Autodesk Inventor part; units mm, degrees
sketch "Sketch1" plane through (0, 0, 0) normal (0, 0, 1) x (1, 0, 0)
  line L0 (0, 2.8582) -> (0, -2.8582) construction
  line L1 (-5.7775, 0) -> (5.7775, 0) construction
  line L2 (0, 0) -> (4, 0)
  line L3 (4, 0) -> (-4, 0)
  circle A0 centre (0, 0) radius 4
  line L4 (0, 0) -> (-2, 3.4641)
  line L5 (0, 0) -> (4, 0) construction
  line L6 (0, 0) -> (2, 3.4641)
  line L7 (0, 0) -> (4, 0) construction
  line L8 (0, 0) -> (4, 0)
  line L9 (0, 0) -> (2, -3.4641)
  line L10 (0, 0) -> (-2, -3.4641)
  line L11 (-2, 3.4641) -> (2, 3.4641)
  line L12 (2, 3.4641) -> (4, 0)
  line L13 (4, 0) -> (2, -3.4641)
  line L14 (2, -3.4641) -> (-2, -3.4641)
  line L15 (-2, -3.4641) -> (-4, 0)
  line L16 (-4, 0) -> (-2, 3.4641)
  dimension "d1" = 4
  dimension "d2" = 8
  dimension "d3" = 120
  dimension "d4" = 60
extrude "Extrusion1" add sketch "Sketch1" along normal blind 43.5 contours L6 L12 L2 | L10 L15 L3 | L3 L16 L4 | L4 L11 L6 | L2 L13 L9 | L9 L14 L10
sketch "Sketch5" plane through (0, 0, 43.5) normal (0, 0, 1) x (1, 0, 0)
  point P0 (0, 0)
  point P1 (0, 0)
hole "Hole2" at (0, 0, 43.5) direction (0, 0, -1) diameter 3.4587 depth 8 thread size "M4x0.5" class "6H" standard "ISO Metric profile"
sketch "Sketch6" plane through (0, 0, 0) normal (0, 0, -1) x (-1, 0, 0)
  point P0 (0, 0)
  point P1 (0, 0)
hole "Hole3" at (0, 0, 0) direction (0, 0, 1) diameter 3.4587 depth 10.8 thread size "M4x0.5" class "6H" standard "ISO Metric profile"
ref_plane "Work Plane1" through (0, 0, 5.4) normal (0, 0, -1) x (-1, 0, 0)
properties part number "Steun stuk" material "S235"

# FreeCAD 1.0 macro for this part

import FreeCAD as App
import Part
import Sketcher
Q = App.Units.Quantity

doc = App.newDocument("Part")
body = doc.addObject("PartDesign::Body", "Body")

# Sketch on XY plane
sketch1 = doc.addObject("Sketcher::SketchObject", "Sketch")
body.addObject(sketch1)
sketch1.AttachmentSupport = (doc.XY_Plane, [""])
sketch1.MapMode = "FlatFace"
sketch1.addGeometry([
    Part.LineSegment(App.Vector(4, 0, 0), App.Vector(2, 3.4641, 0)),  # 0
    Part.LineSegment(App.Vector(2, 3.4641, 0), App.Vector(-2, 3.4641, 0)),  # 1
    Part.LineSegment(App.Vector(-2, 3.4641, 0), App.Vector(-4, 0, 0)),  # 2
    Part.LineSegment(App.Vector(-4, 0, 0), App.Vector(-2, -3.4641, 0)),  # 3
    Part.LineSegment(App.Vector(-2, -3.4641, 0), App.Vector(2, -3.4641, 0)),  # 4
    Part.LineSegment(App.Vector(2, -3.4641, 0), App.Vector(4, 0, 0)),  # 5
], False)
sketch1.addConstraint([
    Sketcher.Constraint("Coincident", 0, 2, 1, 1),
    Sketcher.Constraint("Coincident", 1, 2, 2, 1),
    Sketcher.Constraint("Coincident", 2, 2, 3, 1),
    Sketcher.Constraint("Coincident", 3, 2, 4, 1),
    Sketcher.Constraint("Coincident", 4, 2, 5, 1),
    Sketcher.Constraint("Coincident", 5, 2, 0, 1),
    Sketcher.Constraint("Horizontal", 1),
    Sketcher.Constraint("Horizontal", 4),
    Sketcher.Constraint("Symmetric", 0, 2, 3, 2, -1, 1),
    Sketcher.Constraint("Symmetric", 2, 2, 5, 2, -1, 1),
    Sketcher.Constraint("PointOnObject", 2, 2, -1),
    Sketcher.Constraint("Parallel", 2, 5),
    Sketcher.Constraint("Vertical", 1, 2, 3, 2),
    Sketcher.Constraint("DistanceX", 1, 2, 1, 1, Q("4 mm")),
    Sketcher.Constraint("Angle", 0, Q("120 deg")),
    Sketcher.Constraint("Distance", 0, Q("4 mm")),
])
pad1 = doc.addObject("PartDesign::Pad", "Pad")
body.addObject(pad1)
pad1.Profile = sketch1
pad1.Length = 43.5

# Sketch on XY plane
sketch2 = doc.addObject("Sketcher::SketchObject", "Sketch001")
body.addObject(sketch2)
sketch2.AttachmentSupport = (doc.XY_Plane, [""])
sketch2.MapMode = "FlatFace"
sketch2.AttachmentOffset = App.Placement(App.Vector(0, 0, 43.5), App.Rotation())
sketch2.addGeometry(Part.Circle(App.Vector(0, 0, 0), App.Vector(0, 0, 1), 1.72935), False)
sketch2.addConstraint([
    Sketcher.Constraint("Coincident", 0, 3, -1, 1),
    Sketcher.Constraint("Diameter", 0, Q("3.4587 mm")),
])
doc.recompute()
hole = doc.addObject("PartDesign::Hole", "Hole")
body.addObject(hole)
hole.Profile = sketch2
hole.ThreadType = "None"
hole.Diameter = 3.4587
hole.DepthType = "Dimension"
hole.Depth = 8
hole.DrillPoint = "Flat"

# Sketch on XY plane
sketch3 = doc.addObject("Sketcher::SketchObject", "Sketch002")
body.addObject(sketch3)
sketch3.AttachmentSupport = (doc.XY_Plane, [""])
sketch3.MapMode = "FlatFace"
sketch3.addGeometry(Part.Circle(App.Vector(0, 0, 0), App.Vector(0, 0, 1), 1.72935), False)
sketch3.addConstraint([
    Sketcher.Constraint("Coincident", 0, 3, -1, 1),
    Sketcher.Constraint("Diameter", 0, Q("3.4587 mm")),
])
doc.recompute()
hole2 = doc.addObject("PartDesign::Hole", "Hole001")
body.addObject(hole2)
hole2.Profile = sketch3
hole2.ThreadType = "None"
hole2.Diameter = 3.4587
hole2.DepthType = "Dimension"
hole2.Depth = 10.8
hole2.DrillPoint = "Flat"
hole2.Reversed = True

doc.recompute()
